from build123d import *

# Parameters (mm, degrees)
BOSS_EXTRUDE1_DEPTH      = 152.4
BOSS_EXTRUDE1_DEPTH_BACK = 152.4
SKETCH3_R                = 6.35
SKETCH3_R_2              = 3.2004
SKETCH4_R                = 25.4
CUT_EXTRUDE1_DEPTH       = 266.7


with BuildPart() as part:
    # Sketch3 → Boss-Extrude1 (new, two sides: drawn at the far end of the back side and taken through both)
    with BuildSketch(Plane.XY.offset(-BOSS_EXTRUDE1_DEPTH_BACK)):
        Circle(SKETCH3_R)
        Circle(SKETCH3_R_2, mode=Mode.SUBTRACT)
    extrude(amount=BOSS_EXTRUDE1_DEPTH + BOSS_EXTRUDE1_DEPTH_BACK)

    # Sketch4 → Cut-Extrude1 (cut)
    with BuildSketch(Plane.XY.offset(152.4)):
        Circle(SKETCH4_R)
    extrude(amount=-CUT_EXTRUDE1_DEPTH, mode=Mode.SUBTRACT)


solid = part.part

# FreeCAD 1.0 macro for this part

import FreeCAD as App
import Part
import Sketcher
Q = App.Units.Quantity

doc = App.newDocument("Part")
body = doc.addObject("PartDesign::Body", "Body")

# Sketch on XY plane
sketch1 = doc.addObject("Sketcher::SketchObject", "Sketch")
body.addObject(sketch1)
sketch1.AttachmentSupport = (doc.XY_Plane, [""])
sketch1.MapMode = "FlatFace"
sketch1.addGeometry([
    Part.Circle(App.Vector(0, 0, 0), App.Vector(0, 0, 1), 6.35),
    Part.Circle(App.Vector(0, 0, 0), App.Vector(0, 0, 1), 3.2004),
], False)
sketch1.addConstraint([
    Sketcher.Constraint("Coincident", 0, 3, -1, 1),
    Sketcher.Constraint("Coincident", 1, 3, -1, 1),
    Sketcher.Constraint("Diameter", 0, Q("0.5 in")),
    Sketcher.Constraint("Diameter", 1, Q("0.252 in")),
])
pad1 = doc.addObject("PartDesign::Pad", "Pad")
body.addObject(pad1)
pad1.Profile = sketch1
pad1.Type = "TwoLengths"
pad1.Length = Q("6 in")
pad1.Length2 = Q("6 in")

# Sketch on XY plane
sketch2 = doc.addObject("Sketcher::SketchObject", "Sketch001")
body.addObject(sketch2)
sketch2.AttachmentSupport = (doc.XY_Plane, [""])
sketch2.MapMode = "FlatFace"
sketch2.AttachmentOffset = App.Placement(App.Vector(0, 0, 6 * 25.4), App.Rotation())
sketch2.addGeometry(Part.Circle(App.Vector(0, 0, 0), App.Vector(0, 0, 1), 25.4), False)
sketch2.addConstraint([
    Sketcher.Constraint("Coincident", 0, 3, -1, 1),
    Sketcher.Constraint("Diameter", 0, Q("2 in")),
])
pocket1 = doc.addObject("PartDesign::Pocket", "Pocket")
body.addObject(pocket1)
pocket1.Profile = sketch2
pocket1.Length = Q("10.5 in")

doc.recompute()
